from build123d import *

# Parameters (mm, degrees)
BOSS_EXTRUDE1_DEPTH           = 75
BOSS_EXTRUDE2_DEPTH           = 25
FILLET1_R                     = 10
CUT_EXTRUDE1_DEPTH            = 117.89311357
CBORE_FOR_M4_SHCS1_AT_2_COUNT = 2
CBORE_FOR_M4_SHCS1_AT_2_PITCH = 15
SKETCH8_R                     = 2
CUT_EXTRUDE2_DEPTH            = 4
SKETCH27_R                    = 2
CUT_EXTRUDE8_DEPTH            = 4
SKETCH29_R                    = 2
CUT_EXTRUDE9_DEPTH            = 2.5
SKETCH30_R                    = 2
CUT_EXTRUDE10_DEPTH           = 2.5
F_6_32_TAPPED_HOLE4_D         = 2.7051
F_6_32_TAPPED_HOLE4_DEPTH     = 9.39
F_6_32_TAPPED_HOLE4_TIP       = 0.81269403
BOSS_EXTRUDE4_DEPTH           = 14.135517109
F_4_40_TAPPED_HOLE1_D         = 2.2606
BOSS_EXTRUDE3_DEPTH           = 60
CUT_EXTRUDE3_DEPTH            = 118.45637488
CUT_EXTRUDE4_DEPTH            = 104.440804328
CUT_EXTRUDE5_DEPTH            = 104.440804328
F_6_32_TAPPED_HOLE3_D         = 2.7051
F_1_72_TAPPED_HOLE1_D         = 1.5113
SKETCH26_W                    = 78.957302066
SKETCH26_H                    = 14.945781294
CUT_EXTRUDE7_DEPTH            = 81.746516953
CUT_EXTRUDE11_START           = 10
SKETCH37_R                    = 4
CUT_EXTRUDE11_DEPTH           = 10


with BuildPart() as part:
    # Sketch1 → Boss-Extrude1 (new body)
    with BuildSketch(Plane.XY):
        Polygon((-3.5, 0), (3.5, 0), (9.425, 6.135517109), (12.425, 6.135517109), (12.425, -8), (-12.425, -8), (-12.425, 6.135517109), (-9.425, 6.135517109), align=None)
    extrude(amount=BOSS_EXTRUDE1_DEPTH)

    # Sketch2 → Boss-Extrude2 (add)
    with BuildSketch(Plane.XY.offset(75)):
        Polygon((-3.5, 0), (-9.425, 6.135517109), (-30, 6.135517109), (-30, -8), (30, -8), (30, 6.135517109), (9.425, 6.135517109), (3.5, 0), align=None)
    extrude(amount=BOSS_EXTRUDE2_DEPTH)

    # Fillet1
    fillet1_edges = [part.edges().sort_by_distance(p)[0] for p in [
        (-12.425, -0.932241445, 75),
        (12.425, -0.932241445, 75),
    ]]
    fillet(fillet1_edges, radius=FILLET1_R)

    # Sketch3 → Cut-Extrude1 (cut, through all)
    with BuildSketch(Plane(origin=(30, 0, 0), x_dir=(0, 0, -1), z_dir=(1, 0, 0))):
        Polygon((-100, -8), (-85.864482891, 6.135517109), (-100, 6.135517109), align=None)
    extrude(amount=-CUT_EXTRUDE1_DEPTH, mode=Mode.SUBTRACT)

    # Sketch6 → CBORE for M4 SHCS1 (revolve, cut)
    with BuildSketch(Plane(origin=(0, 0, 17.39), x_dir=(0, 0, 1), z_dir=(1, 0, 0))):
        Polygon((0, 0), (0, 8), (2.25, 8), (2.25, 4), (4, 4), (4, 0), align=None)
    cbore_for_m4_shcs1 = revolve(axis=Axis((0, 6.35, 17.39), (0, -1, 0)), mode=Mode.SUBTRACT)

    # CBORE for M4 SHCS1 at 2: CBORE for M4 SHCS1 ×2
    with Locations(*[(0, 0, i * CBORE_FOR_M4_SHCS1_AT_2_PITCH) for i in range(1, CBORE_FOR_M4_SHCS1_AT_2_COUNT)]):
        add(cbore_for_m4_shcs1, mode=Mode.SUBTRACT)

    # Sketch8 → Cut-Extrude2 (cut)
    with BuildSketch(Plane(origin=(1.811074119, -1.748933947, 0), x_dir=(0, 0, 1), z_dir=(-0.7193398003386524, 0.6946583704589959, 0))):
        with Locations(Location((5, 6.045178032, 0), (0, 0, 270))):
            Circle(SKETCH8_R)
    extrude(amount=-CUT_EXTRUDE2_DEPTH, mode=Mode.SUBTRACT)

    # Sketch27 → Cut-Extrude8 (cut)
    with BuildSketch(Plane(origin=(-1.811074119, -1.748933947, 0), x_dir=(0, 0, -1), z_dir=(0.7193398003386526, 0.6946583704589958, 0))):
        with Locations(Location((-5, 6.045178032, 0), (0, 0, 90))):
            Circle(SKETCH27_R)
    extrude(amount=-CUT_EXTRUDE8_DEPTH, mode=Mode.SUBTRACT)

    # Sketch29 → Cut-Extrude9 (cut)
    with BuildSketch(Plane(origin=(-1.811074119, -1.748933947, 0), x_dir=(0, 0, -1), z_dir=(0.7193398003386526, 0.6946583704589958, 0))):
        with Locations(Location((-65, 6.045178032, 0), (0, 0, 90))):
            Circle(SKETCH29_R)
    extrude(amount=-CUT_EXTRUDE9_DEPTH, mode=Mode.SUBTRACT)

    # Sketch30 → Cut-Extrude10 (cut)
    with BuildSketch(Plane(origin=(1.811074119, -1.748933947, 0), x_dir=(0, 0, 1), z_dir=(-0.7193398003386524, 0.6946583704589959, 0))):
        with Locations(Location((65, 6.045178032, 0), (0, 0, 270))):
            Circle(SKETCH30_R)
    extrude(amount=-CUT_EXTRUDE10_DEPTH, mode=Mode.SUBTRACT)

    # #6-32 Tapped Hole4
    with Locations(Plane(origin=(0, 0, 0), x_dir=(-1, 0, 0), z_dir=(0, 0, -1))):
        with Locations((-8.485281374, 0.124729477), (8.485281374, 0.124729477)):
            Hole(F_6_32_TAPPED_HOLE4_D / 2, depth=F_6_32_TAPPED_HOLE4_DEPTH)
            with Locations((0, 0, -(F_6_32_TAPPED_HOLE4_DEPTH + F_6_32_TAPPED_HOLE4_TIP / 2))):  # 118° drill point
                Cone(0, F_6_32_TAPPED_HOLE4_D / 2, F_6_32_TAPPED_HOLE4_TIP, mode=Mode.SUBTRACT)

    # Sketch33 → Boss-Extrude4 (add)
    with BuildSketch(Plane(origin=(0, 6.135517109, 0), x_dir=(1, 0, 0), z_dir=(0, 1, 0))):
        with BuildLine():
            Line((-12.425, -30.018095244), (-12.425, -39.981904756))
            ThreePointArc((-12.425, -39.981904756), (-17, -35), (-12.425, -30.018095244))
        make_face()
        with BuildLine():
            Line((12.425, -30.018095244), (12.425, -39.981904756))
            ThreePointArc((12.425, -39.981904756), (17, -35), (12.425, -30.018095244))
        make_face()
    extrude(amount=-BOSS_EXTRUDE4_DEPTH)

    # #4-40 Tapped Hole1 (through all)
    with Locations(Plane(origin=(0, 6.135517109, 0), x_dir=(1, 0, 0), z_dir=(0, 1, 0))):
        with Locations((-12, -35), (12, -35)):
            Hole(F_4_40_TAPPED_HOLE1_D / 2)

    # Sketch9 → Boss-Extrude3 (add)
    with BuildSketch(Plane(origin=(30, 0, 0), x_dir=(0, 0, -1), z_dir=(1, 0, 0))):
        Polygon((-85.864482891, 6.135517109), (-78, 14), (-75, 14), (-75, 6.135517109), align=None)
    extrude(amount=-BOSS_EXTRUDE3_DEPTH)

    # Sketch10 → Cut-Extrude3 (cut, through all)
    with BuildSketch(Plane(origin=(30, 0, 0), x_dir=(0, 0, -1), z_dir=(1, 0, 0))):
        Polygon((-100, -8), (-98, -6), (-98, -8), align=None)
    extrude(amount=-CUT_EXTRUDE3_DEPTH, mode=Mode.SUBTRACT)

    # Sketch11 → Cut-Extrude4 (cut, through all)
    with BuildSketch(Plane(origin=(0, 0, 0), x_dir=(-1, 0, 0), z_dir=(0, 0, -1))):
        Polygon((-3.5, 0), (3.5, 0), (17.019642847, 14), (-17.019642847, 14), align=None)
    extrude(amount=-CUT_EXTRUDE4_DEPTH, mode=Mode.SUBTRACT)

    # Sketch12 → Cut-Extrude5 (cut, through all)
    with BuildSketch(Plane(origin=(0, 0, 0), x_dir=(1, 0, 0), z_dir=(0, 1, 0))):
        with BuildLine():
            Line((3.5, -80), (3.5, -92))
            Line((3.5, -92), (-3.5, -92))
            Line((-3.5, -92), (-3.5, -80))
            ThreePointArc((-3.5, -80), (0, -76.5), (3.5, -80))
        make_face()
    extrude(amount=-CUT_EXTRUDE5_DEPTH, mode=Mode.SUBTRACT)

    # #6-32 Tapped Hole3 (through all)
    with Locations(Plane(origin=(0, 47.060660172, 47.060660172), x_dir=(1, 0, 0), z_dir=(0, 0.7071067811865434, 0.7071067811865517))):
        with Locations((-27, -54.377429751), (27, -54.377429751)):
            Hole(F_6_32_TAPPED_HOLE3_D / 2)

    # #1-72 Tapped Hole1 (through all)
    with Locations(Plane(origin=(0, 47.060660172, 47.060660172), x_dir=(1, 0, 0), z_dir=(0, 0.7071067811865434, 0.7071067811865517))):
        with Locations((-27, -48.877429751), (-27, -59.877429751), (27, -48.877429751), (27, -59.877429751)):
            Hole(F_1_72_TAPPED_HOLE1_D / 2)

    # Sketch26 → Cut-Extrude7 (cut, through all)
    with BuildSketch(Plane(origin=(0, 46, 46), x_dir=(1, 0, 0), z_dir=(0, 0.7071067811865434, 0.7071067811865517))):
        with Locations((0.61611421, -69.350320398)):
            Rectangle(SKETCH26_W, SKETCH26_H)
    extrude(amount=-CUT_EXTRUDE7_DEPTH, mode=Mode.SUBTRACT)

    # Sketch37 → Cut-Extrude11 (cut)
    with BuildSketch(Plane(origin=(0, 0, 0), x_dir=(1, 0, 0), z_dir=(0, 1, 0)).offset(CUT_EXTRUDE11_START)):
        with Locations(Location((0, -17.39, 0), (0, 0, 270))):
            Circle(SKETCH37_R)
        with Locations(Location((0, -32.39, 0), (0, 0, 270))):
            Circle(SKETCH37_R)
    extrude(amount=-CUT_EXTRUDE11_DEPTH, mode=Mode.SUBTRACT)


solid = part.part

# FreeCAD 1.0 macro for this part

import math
import FreeCAD as App
import Part
import Sketcher
Q = App.Units.Quantity


def edges_at(feature, points):
    """Names of the edges that pass closest to the given points."""
    edges = feature.Shape.Edges
    near = lambda p: min(range(len(edges)), key=lambda i: edges[i].distToShape(Part.Vertex(*p))[0])
    return sorted({f"Edge{near(p) + 1}" for p in points})

doc = App.newDocument("Part")
body = doc.addObject("PartDesign::Body", "Body")

sketch1 = body.newObject("Sketcher::SketchObject", "Sketch")
sketch1.AttachmentSupport = (doc.getObject("XY_Plane"), [""])
sketch1.MapMode = "FlatFace"
sketch1.addGeometry(Part.LineSegment(App.Vector(3.5, 0, 0), App.Vector(-3.5, 0, 0)), False)
sketch1.addGeometry(Part.LineSegment(App.Vector(-3.5, 0, 0), App.Vector(-9.425, 6.135517, 0)), False)
sketch1.addGeometry(Part.LineSegment(App.Vector(-9.425, 6.135517, 0), App.Vector(-12.425, 6.135517, 0)), False)
sketch1.addGeometry(Part.LineSegment(App.Vector(-12.425, 6.135517, 0), App.Vector(-12.425, -8, 0)), False)
sketch1.addGeometry(Part.LineSegment(App.Vector(-12.425, -8, 0), App.Vector(12.425, -8, 0)), False)
sketch1.addGeometry(Part.LineSegment(App.Vector(12.425, -8, 0), App.Vector(12.425, 6.135517, 0)), False)
sketch1.addGeometry(Part.LineSegment(App.Vector(12.425, 6.135517, 0), App.Vector(9.425, 6.135517, 0)), False)
sketch1.addGeometry(Part.LineSegment(App.Vector(9.425, 6.135517, 0), App.Vector(3.5, 0, 0)), False)
sketch1.addConstraint(Sketcher.Constraint("Coincident", 0, 2, 1, 1))
sketch1.addConstraint(Sketcher.Constraint("Coincident", 1, 2, 2, 1))
sketch1.addConstraint(Sketcher.Constraint("Coincident", 2, 2, 3, 1))
sketch1.addConstraint(Sketcher.Constraint("Coincident", 3, 2, 4, 1))
sketch1.addConstraint(Sketcher.Constraint("Coincident", 4, 2, 5, 1))
sketch1.addConstraint(Sketcher.Constraint("Coincident", 5, 2, 6, 1))
sketch1.addConstraint(Sketcher.Constraint("Coincident", 6, 2, 7, 1))
sketch1.addConstraint(Sketcher.Constraint("Coincident", 7, 2, 0, 1))
sketch1.addConstraint(Sketcher.Constraint("Horizontal", 0))
sketch1.addConstraint(Sketcher.Constraint("Horizontal", 2))
sketch1.addConstraint(Sketcher.Constraint("Vertical", 3))
sketch1.addConstraint(Sketcher.Constraint("Horizontal", 4))
sketch1.addConstraint(Sketcher.Constraint("Vertical", 5))
sketch1.addConstraint(Sketcher.Constraint("Horizontal", 6))
sketch1.addConstraint(Sketcher.Constraint("Symmetric", 0, 2, 7, 2, -1, 1))
sketch1.addConstraint(Sketcher.Constraint("Symmetric", 2, 2, 5, 2, -2))
sketch1.addConstraint(Sketcher.Constraint("Equal", 2, 6))
sketch1.addConstraint(Sketcher.Constraint("DistanceX", 0, 2, 0, 1, 7.0))
sketch1.addConstraint(Sketcher.Constraint("DistanceX", 2, 2, 2, 1, 3.0))
sketch1.addConstraint(Sketcher.Constraint("Angle", 1, Q("134 deg")))
sketch1.addConstraint(Sketcher.Constraint("DistanceY", 3, 2, -1, 1, 8.0))
sketch1.addConstraint(Sketcher.Constraint("DistanceX", 4, 1, 4, 2, 24.85))
pad1 = body.newObject("PartDesign::Pad", "Pad")
pad1.Profile = sketch1
pad1.Length = 75

sketch2 = body.newObject("Sketcher::SketchObject", "Sketch001")
sketch2.AttachmentSupport = (doc.getObject("XY_Plane"), [""])
sketch2.MapMode = "FlatFace"
sketch2.AttachmentOffset = App.Placement(App.Vector(0, 0, 75), App.Rotation())
sketch2.addGeometry(Part.LineSegment(App.Vector(-3.5, 0, 0), App.Vector(-9.425, 6.135517, 0)), False)
sketch2.addGeometry(Part.LineSegment(App.Vector(-9.425, 6.135517, 0), App.Vector(-30, 6.135517, 0)), False)
sketch2.addGeometry(Part.LineSegment(App.Vector(-30, 6.135517, 0), App.Vector(-30, -8, 0)), False)
sketch2.addGeometry(Part.LineSegment(App.Vector(-30, -8, 0), App.Vector(30, -8, 0)), False)
sketch2.addGeometry(Part.LineSegment(App.Vector(30, -8, 0), App.Vector(30, 6.135517, 0)), False)
sketch2.addGeometry(Part.LineSegment(App.Vector(30, 6.135517, 0), App.Vector(9.425, 6.135517, 0)), False)
sketch2.addGeometry(Part.LineSegment(App.Vector(9.425, 6.135517, 0), App.Vector(3.5, 0, 0)), False)
sketch2.addGeometry(Part.LineSegment(App.Vector(3.5, 0, 0), App.Vector(-3.5, 0, 0)), False)
sketch2.addConstraint(Sketcher.Constraint("Coincident", 0, 2, 1, 1))
sketch2.addConstraint(Sketcher.Constraint("Coincident", 1, 2, 2, 1))
sketch2.addConstraint(Sketcher.Constraint("Coincident", 2, 2, 3, 1))
sketch2.addConstraint(Sketcher.Constraint("Coincident", 3, 2, 4, 1))
sketch2.addConstraint(Sketcher.Constraint("Coincident", 4, 2, 5, 1))
sketch2.addConstraint(Sketcher.Constraint("Coincident", 5, 2, 6, 1))
sketch2.addConstraint(Sketcher.Constraint("Coincident", 6, 2, 7, 1))
sketch2.addConstraint(Sketcher.Constraint("Coincident", 7, 2, 0, 1))
sketch2.addConstraint(Sketcher.Constraint("Horizontal", 1))
sketch2.addConstraint(Sketcher.Constraint("Vertical", 2))
sketch2.addConstraint(Sketcher.Constraint("Horizontal", 3))
sketch2.addConstraint(Sketcher.Constraint("Vertical", 4))
sketch2.addConstraint(Sketcher.Constraint("Horizontal", 5))
sketch2.addConstraint(Sketcher.Constraint("Horizontal", 7))
sketch2.addConstraint(Sketcher.Constraint("Symmetric", 6, 2, 7, 2, -1, 1))
sketch2.addConstraint(Sketcher.Constraint("Symmetric", 1, 2, 4, 2, -2))
sketch2.addConstraint(Sketcher.Constraint("Equal", 1, 5))
sketch2.addConstraint(Sketcher.Constraint("DistanceX", 3, 1, 3, 2, 60.0))
sketch2.addConstraint(Sketcher.Constraint("DistanceX", 7, 2, 7, 1, 7.0))
sketch2.addConstraint(Sketcher.Constraint("Angle", 0, Q("134 deg")))
sketch2.addConstraint(Sketcher.Constraint("DistanceY", 2, 2, -1, 1, 8.0))
sketch2.addConstraint(Sketcher.Constraint("DistanceX", 1, 2, 1, 1, 20.575))
pad2 = body.newObject("PartDesign::Pad", "Pad001")
pad2.Profile = sketch2
pad2.Length = 25
doc.recompute()

fillet = body.newObject("PartDesign::Fillet", "Fillet")
fillet.Base = (pad2, edges_at(pad2, [(-12.425, -0.932, 75), (12.425, -0.932, 75)]))
fillet.Radius = 10

sketch3 = body.newObject("Sketcher::SketchObject", "Sketch002")
sketch3.AttachmentSupport = (doc.getObject("YZ_Plane"), [""])
sketch3.MapMode = "FlatFace"
sketch3.AttachmentOffset = App.Placement(App.Vector(0, 0, 30), App.Rotation())
sketch3.addGeometry(Part.LineSegment(App.Vector(-8, 100, 0), App.Vector(6.135517, 85.864483, 0)), False)
sketch3.addGeometry(Part.LineSegment(App.Vector(6.135517, 85.864483, 0), App.Vector(6.135517, 100, 0)), False)
sketch3.addGeometry(Part.LineSegment(App.Vector(6.135517, 100, 0), App.Vector(-8, 100, 0)), False)
sketch3.addConstraint(Sketcher.Constraint("Coincident", 0, 2, 1, 1))
sketch3.addConstraint(Sketcher.Constraint("Coincident", 1, 2, 2, 1))
sketch3.addConstraint(Sketcher.Constraint("Coincident", 2, 2, 0, 1))
sketch3.addConstraint(Sketcher.Constraint("Vertical", 1))
sketch3.addConstraint(Sketcher.Constraint("Horizontal", 2))
sketch3.addConstraint(Sketcher.Constraint("Equal", 2, 1))
sketch3.addConstraint(Sketcher.Constraint("DistanceY", -1, 1, 1, 2, 100.0))
sketch3.addConstraint(Sketcher.Constraint("DistanceX", 2, 2, -1, 1, 8.0))
sketch3.addConstraint(Sketcher.Constraint("Distance", 0, 19.99064))
pocket1 = body.newObject("PartDesign::Pocket", "Pocket")
pocket1.Profile = sketch3
pocket1.Type = "ThroughAll"

sketch4 = body.newObject("Sketcher::SketchObject", "Sketch003")
sketch4.AttachmentSupport = (doc.getObject("YZ_Plane"), [""])
sketch4.MapMode = "FlatFace"
sketch4.addGeometry(Part.LineSegment(App.Vector(-8, 17.39, 0), App.Vector(0, 17.39, 0)), False)
sketch4.addGeometry(Part.LineSegment(App.Vector(0, 17.39, 0), App.Vector(0, 21.39, 0)), False)
sketch4.addGeometry(Part.LineSegment(App.Vector(0, 21.39, 0), App.Vector(-4, 21.39, 0)), False)
sketch4.addGeometry(Part.LineSegment(App.Vector(-4, 21.39, 0), App.Vector(-4, 19.64, 0)), False)
sketch4.addGeometry(Part.LineSegment(App.Vector(-4, 19.64, 0), App.Vector(-8, 19.64, 0)), False)
sketch4.addGeometry(Part.LineSegment(App.Vector(-8, 19.64, 0), App.Vector(-8, 17.39, 0)), False)
sketch4.addGeometry(Part.LineSegment(App.Vector(0, 17.39, 0), App.Vector(-8, 17.39, 0)), True)
sketch4.addConstraint(Sketcher.Constraint("Coincident", 0, 2, 1, 1))
sketch4.addConstraint(Sketcher.Constraint("Coincident", 1, 2, 2, 1))
sketch4.addConstraint(Sketcher.Constraint("Coincident", 2, 2, 3, 1))
sketch4.addConstraint(Sketcher.Constraint("Coincident", 3, 2, 4, 1))
sketch4.addConstraint(Sketcher.Constraint("Coincident", 4, 2, 5, 1))
sketch4.addConstraint(Sketcher.Constraint("Coincident", 5, 2, 0, 1))
sketch4.addConstraint(Sketcher.Constraint("Horizontal", 0))
sketch4.addConstraint(Sketcher.Constraint("Vertical", 1))
sketch4.addConstraint(Sketcher.Constraint("Horizontal", 2))
sketch4.addConstraint(Sketcher.Constraint("Vertical", 3))
sketch4.addConstraint(Sketcher.Constraint("Horizontal", 4))
sketch4.addConstraint(Sketcher.Constraint("Vertical", 5))
sketch4.addConstraint(Sketcher.Constraint("Horizontal", 6))
sketch4.addConstraint(Sketcher.Constraint("Coincident", 6, 1, 0, 2))
sketch4.addConstraint(Sketcher.Constraint("PointOnObject", 0, 2, -2))
sketch4.addConstraint(Sketcher.Constraint("Vertical", 4, 2, 6, 2))
sketch4.addConstraint(Sketcher.Constraint("Equal", 2, 4))
sketch4.addConstraint(Sketcher.Constraint("Equal", 4, 1))
sketch4.addConstraint(Sketcher.Constraint("DistanceX", 0, 1, 0, 2, 8.0))
sketch4.addConstraint(Sketcher.Constraint("DistanceY", 3, 2, 3, 1, 1.75))
sketch4.addConstraint(Sketcher.Constraint("DistanceY", -1, 1, 0, 2, 17.39))
groove = body.newObject("PartDesign::Groove", "Groove")
groove.Profile = sketch4
groove.ReferenceAxis = (sketch4, ["Axis0"])
groove.Angle = 360
doc.recompute()

linearpattern = body.newObject("PartDesign::LinearPattern", "LinearPattern")
linearpattern.Originals = [groove]
linearpattern.Direction = (doc.getObject("Z_Axis"), [""])
linearpattern.Mode = "offset"
linearpattern.Offset = 15
linearpattern.Occurrences = 2
body.Tip = linearpattern

sketch5 = body.newObject("Sketcher::SketchObject", "Sketch004")
sketch5.Placement = App.Placement(App.Vector(1.811074, -1.748934, 0), App.Rotation(App.Vector(0, 0, 1), App.Vector(0.69465837, 0.7193398, 0), App.Vector(-0.7193398, 0.69465837, 0), "ZXY"))
sketch5.addGeometry(Part.Circle(App.Vector(5, 6.045178, 0), App.Vector(0, 0, 1), 2), False)
sketch5.addConstraint(Sketcher.Constraint("Diameter", 0, 4.0))
sketch5.addConstraint(Sketcher.Constraint("DistanceX", -1, 1, 0, 3, 5.0))
sketch5.addConstraint(Sketcher.Constraint("DistanceY", -1, 1, 0, 3, 6.045178))
pocket2 = body.newObject("PartDesign::Pocket", "Pocket001")
pocket2.Profile = sketch5
pocket2.Length = 4

sketch6 = body.newObject("Sketcher::SketchObject", "Sketch005")
sketch6.Placement = App.Placement(App.Vector(-1.811074, -1.748934, 0), App.Rotation(App.Vector(0, 0, -1), App.Vector(-0.69465837, 0.7193398, 0), App.Vector(0.7193398, 0.69465837, 0), "ZXY"))
sketch6.addGeometry(Part.Circle(App.Vector(-5, 6.045178, 0), App.Vector(0, 0, 1), 2), False)
sketch6.addConstraint(Sketcher.Constraint("Diameter", 0, 4.0))
sketch6.addConstraint(Sketcher.Constraint("DistanceX", 0, 3, -1, 1, 5.0))
sketch6.addConstraint(Sketcher.Constraint("DistanceY", -1, 1, 0, 3, 6.045178))
pocket3 = body.newObject("PartDesign::Pocket", "Pocket002")
pocket3.Profile = sketch6
pocket3.Length = 4

sketch7 = body.newObject("Sketcher::SketchObject", "Sketch006")
sketch7.Placement = App.Placement(App.Vector(-1.811074, -1.748934, 0), App.Rotation(App.Vector(0, 0, -1), App.Vector(-0.69465837, 0.7193398, 0), App.Vector(0.7193398, 0.69465837, 0), "ZXY"))
sketch7.addGeometry(Part.Circle(App.Vector(-65, 6.045178, 0), App.Vector(0, 0, 1), 2), False)
sketch7.addConstraint(Sketcher.Constraint("Diameter", 0, 4.0))
sketch7.addConstraint(Sketcher.Constraint("DistanceX", 0, 3, -1, 1, 65.0))
sketch7.addConstraint(Sketcher.Constraint("DistanceY", -1, 1, 0, 3, 6.045178))
pocket4 = body.newObject("PartDesign::Pocket", "Pocket003")
pocket4.Profile = sketch7
pocket4.Length = 2.5

sketch8 = body.newObject("Sketcher::SketchObject", "Sketch007")
sketch8.Placement = App.Placement(App.Vector(1.811074, -1.748934, 0), App.Rotation(App.Vector(0, 0, 1), App.Vector(0.69465837, 0.7193398, 0), App.Vector(-0.7193398, 0.69465837, 0), "ZXY"))
sketch8.addGeometry(Part.Circle(App.Vector(65, 6.045178, 0), App.Vector(0, 0, 1), 2), False)
sketch8.addConstraint(Sketcher.Constraint("Diameter", 0, 4.0))
sketch8.addConstraint(Sketcher.Constraint("DistanceX", -1, 1, 0, 3, 65.0))
sketch8.addConstraint(Sketcher.Constraint("DistanceY", -1, 1, 0, 3, 6.045178))
pocket5 = body.newObject("PartDesign::Pocket", "Pocket004")
pocket5.Profile = sketch8
pocket5.Length = 2.5

sketch9 = body.newObject("Sketcher::SketchObject", "Sketch008")
sketch9.AttachmentSupport = (doc.getObject("XY_Plane"), [""])
sketch9.MapMode = "FlatFace"
sketch9.addGeometry(Part.Circle(App.Vector(8.485281, 0.124729, 0), App.Vector(0, 0, 1), 1.35255), False)
sketch9.addGeometry(Part.Circle(App.Vector(-8.485281, 0.124729, 0), App.Vector(0, 0, 1), 1.35255), False)
sketch9.addConstraint(Sketcher.Constraint("Equal", 0, 1))
sketch9.addConstraint(Sketcher.Constraint("Symmetric", 0, 3, 1, 3, -2))
sketch9.addConstraint(Sketcher.Constraint("Diameter", 0, 2.7051))
sketch9.addConstraint(Sketcher.Constraint("DistanceX", -1, 1, 0, 3, 8.485281))
sketch9.addConstraint(Sketcher.Constraint("DistanceY", -1, 1, 0, 3, 0.124729))
doc.recompute()
hole = body.newObject("PartDesign::Hole", "Hole")
hole.Profile = sketch9
hole.ThreadType = "None"
hole.Diameter = 2.7051
hole.DepthType = "Dimension"
hole.Depth = 9.39
hole.DrillPoint = "Angled"
hole.DrillPointAngle = 118
hole.Reversed = True

sketch10 = body.newObject("Sketcher::SketchObject", "Sketch009")
sketch10.AttachmentSupport = (doc.getObject("XZ_Plane"), [""])
sketch10.MapMode = "FlatFace"
sketch10.AttachmentOffset = App.Placement(App.Vector(0, 0, -6.135517), App.Rotation())
sketch10.addGeometry(Part.LineSegment(App.Vector(-12.425, 39.981905, 0), App.Vector(-12.425, 30.018095, 0)), False)
sketch10.addGeometry(Part.ArcOfCircle(Part.Circle(App.Vector(-12, 35, 0), App.Vector(0, 0, 1), 5), math.radians(94.876025), math.radians(265.123975)), False)
sketch10.addGeometry(Part.LineSegment(App.Vector(12.425, 30.018095, 0), App.Vector(12.425, 39.981905, 0)), False)
sketch10.addGeometry(Part.ArcOfCircle(Part.Circle(App.Vector(12, 35, 0), App.Vector(0, 0, 1), 5), math.radians(-85.123975), math.radians(85.123975)), False)
sketch10.addConstraint(Sketcher.Constraint("Coincident", 0, 1, 1, 1))
sketch10.addConstraint(Sketcher.Constraint("Coincident", 1, 2, 0, 2))
sketch10.addConstraint(Sketcher.Constraint("Coincident", 2, 1, 3, 1))
sketch10.addConstraint(Sketcher.Constraint("Coincident", 3, 2, 2, 2))
sketch10.addConstraint(Sketcher.Constraint("Vertical", 0))
sketch10.addConstraint(Sketcher.Constraint("Vertical", 2))
sketch10.addConstraint(Sketcher.Constraint("Equal", 1, 3))
sketch10.addConstraint(Sketcher.Constraint("Symmetric", 1, 3, 3, 3, -2))
sketch10.addConstraint(Sketcher.Constraint("Horizontal", 1, 2, 2, 1))
sketch10.addConstraint(Sketcher.Constraint("Radius", 1, 5.0))
sketch10.addConstraint(Sketcher.Constraint("DistanceX", 1, 3, -1, 1, 12.0))
sketch10.addConstraint(Sketcher.Constraint("DistanceY", -1, 1, 1, 3, 35.0))
sketch10.addConstraint(Sketcher.Constraint("DistanceX", 1, 2, 2, 1, 24.85))
pad3 = body.newObject("PartDesign::Pad", "Pad002")
pad3.Profile = sketch10
pad3.Length = 14.135517

sketch11 = body.newObject("Sketcher::SketchObject", "Sketch010")
sketch11.AttachmentSupport = (doc.getObject("XZ_Plane"), [""])
sketch11.MapMode = "FlatFace"
sketch11.AttachmentOffset = App.Placement(App.Vector(0, 0, -6.135517), App.Rotation())
sketch11.addGeometry(Part.Circle(App.Vector(-12, 35, 0), App.Vector(0, 0, 1), 1.1303), False)
sketch11.addGeometry(Part.Circle(App.Vector(12, 35, 0), App.Vector(0, 0, 1), 1.1303), False)
sketch11.addConstraint(Sketcher.Constraint("Equal", 0, 1))
sketch11.addConstraint(Sketcher.Constraint("Symmetric", 0, 3, 1, 3, -2))
sketch11.addConstraint(Sketcher.Constraint("DistanceX", 0, 3, -1, 1, 12.0))
sketch11.addConstraint(Sketcher.Constraint("DistanceY", -1, 1, 0, 3, 35.0))
sketch11.addConstraint(Sketcher.Constraint("Diameter", 0, 2.2606))
doc.recompute()
hole2 = body.newObject("PartDesign::Hole", "Hole001")
hole2.Profile = sketch11
hole2.ThreadType = "None"
hole2.Diameter = 2.2606
hole2.DepthType = "ThroughAll"
hole2.Reversed = True

sketch12 = body.newObject("Sketcher::SketchObject", "Sketch011")
sketch12.AttachmentSupport = (doc.getObject("YZ_Plane"), [""])
sketch12.MapMode = "FlatFace"
sketch12.AttachmentOffset = App.Placement(App.Vector(0, 0, 30), App.Rotation())
sketch12.addGeometry(Part.LineSegment(App.Vector(14, 78, 0), App.Vector(6.135517, 85.864483, 0)), False)
sketch12.addGeometry(Part.LineSegment(App.Vector(6.135517, 85.864483, 0), App.Vector(6.135517, 75, 0)), False)
sketch12.addGeometry(Part.LineSegment(App.Vector(6.135517, 75, 0), App.Vector(14, 75, 0)), False)
sketch12.addGeometry(Part.LineSegment(App.Vector(14, 75, 0), App.Vector(14, 78, 0)), False)
sketch12.addConstraint(Sketcher.Constraint("Coincident", 0, 2, 1, 1))
sketch12.addConstraint(Sketcher.Constraint("Coincident", 1, 2, 2, 1))
sketch12.addConstraint(Sketcher.Constraint("Coincident", 2, 2, 3, 1))
sketch12.addConstraint(Sketcher.Constraint("Coincident", 3, 2, 0, 1))
sketch12.addConstraint(Sketcher.Constraint("Vertical", 1))
sketch12.addConstraint(Sketcher.Constraint("Horizontal", 2))
sketch12.addConstraint(Sketcher.Constraint("Vertical", 3))
sketch12.addConstraint(Sketcher.Constraint("DistanceY", 3, 1, 3, 2, 3.0))
sketch12.addConstraint(Sketcher.Constraint("Angle", 0, Q("135 deg")))
sketch12.addConstraint(Sketcher.Constraint("DistanceY", -1, 1, 1, 2, 75.0))
sketch12.addConstraint(Sketcher.Constraint("DistanceX", -1, 1, 2, 2, 14.0))
sketch12.addConstraint(Sketcher.Constraint("Distance", 0, 11.122058))
pad4 = body.newObject("PartDesign::Pad", "Pad003")
pad4.Profile = sketch12
pad4.Length = 60
pad4.Reversed = True

sketch13 = body.newObject("Sketcher::SketchObject", "Sketch012")
sketch13.AttachmentSupport = (doc.getObject("YZ_Plane"), [""])
sketch13.MapMode = "FlatFace"
sketch13.AttachmentOffset = App.Placement(App.Vector(0, 0, 30), App.Rotation())
sketch13.addGeometry(Part.LineSegment(App.Vector(-6, 98, 0), App.Vector(-8, 100, 0)), False)
sketch13.addGeometry(Part.LineSegment(App.Vector(-8, 100, 0), App.Vector(-8, 98, 0)), False)
sketch13.addGeometry(Part.LineSegment(App.Vector(-8, 98, 0), App.Vector(-6, 98, 0)), False)
sketch13.addConstraint(Sketcher.Constraint("Coincident", 0, 2, 1, 1))
sketch13.addConstraint(Sketcher.Constraint("Coincident", 1, 2, 2, 1))
sketch13.addConstraint(Sketcher.Constraint("Coincident", 2, 2, 0, 1))
sketch13.addConstraint(Sketcher.Constraint("Vertical", 1))
sketch13.addConstraint(Sketcher.Constraint("Horizontal", 2))
sketch13.addConstraint(Sketcher.Constraint("Equal", 2, 1))
sketch13.addConstraint(Sketcher.Constraint("DistanceX", 2, 1, 2, 2, 2.0))
sketch13.addConstraint(Sketcher.Constraint("DistanceX", 0, 2, -1, 1, 8.0))
sketch13.addConstraint(Sketcher.Constraint("DistanceY", -1, 1, 0, 2, 100.0))
pocket6 = body.newObject("PartDesign::Pocket", "Pocket005")
pocket6.Profile = sketch13
pocket6.Type = "ThroughAll"

sketch14 = body.newObject("Sketcher::SketchObject", "Sketch013")
sketch14.AttachmentSupport = (doc.getObject("XY_Plane"), [""])
sketch14.MapMode = "FlatFace"
sketch14.addGeometry(Part.LineSegment(App.Vector(3.5, 0, 0), App.Vector(-3.5, 0, 0)), False)
sketch14.addGeometry(Part.LineSegment(App.Vector(-3.5, 0, 0), App.Vector(-17.019643, 14, 0)), False)
sketch14.addGeometry(Part.LineSegment(App.Vector(-17.019643, 14, 0), App.Vector(17.019643, 14, 0)), False)
sketch14.addGeometry(Part.LineSegment(App.Vector(17.019643, 14, 0), App.Vector(3.5, 0, 0)), False)
sketch14.addConstraint(Sketcher.Constraint("Coincident", 0, 2, 1, 1))
sketch14.addConstraint(Sketcher.Constraint("Coincident", 1, 2, 2, 1))
sketch14.addConstraint(Sketcher.Constraint("Coincident", 2, 2, 3, 1))
sketch14.addConstraint(Sketcher.Constraint("Coincident", 3, 2, 0, 1))
sketch14.addConstraint(Sketcher.Constraint("Horizontal", 0))
sketch14.addConstraint(Sketcher.Constraint("Horizontal", 2))
sketch14.addConstraint(Sketcher.Constraint("Symmetric", 0, 2, 3, 2, -1, 1))
sketch14.addConstraint(Sketcher.Constraint("Equal", 1, 3))
sketch14.addConstraint(Sketcher.Constraint("DistanceX", 0, 2, 0, 1, 7.0))
sketch14.addConstraint(Sketcher.Constraint("Angle", 1, Q("134 deg")))
sketch14.addConstraint(Sketcher.Constraint("DistanceY", -1, 1, 1, 2, 14.0))
pocket7 = body.newObject("PartDesign::Pocket", "Pocket006")
pocket7.Profile = sketch14
pocket7.Type = "ThroughAll"
pocket7.Reversed = True

sketch15 = body.newObject("Sketcher::SketchObject", "Sketch014")
sketch15.AttachmentSupport = (doc.getObject("XZ_Plane"), [""])
sketch15.MapMode = "FlatFace"
sketch15.addGeometry(Part.LineSegment(App.Vector(3.5, 92, 0), App.Vector(3.5, 80, 0)), False)
sketch15.addGeometry(Part.ArcOfCircle(Part.Circle(App.Vector(0, 80, 0), App.Vector(0, 0, 1), 3.5), math.radians(180), math.radians(360)), False)
sketch15.addGeometry(Part.LineSegment(App.Vector(-3.5, 80, 0), App.Vector(-3.5, 92, 0)), False)
sketch15.addGeometry(Part.LineSegment(App.Vector(-3.5, 92, 0), App.Vector(3.5, 92, 0)), False)
sketch15.addConstraint(Sketcher.Constraint("Tangent", 0, 2, 1, 2))
sketch15.addConstraint(Sketcher.Constraint("Tangent", 1, 1, 2, 1))
sketch15.addConstraint(Sketcher.Constraint("Coincident", 2, 2, 3, 1))
sketch15.addConstraint(Sketcher.Constraint("Coincident", 3, 2, 0, 1))
sketch15.addConstraint(Sketcher.Constraint("Vertical", 0))
sketch15.addConstraint(Sketcher.Constraint("Vertical", 2))
sketch15.addConstraint(Sketcher.Constraint("Horizontal", 3))
sketch15.addConstraint(Sketcher.Constraint("PointOnObject", 1, 3, -2))
sketch15.addConstraint(Sketcher.Constraint("Radius", 1, 3.5))
sketch15.addConstraint(Sketcher.Constraint("DistanceY", 0, 2, 0, 1, 12.0))
sketch15.addConstraint(Sketcher.Constraint("DistanceY", -1, 1, 1, 3, 80.0))
pocket8 = body.newObject("PartDesign::Pocket", "Pocket007")
pocket8.Profile = sketch15
pocket8.Type = "ThroughAll"
pocket8.Reversed = True

sketch16 = body.newObject("Sketcher::SketchObject", "Sketch015")
sketch16.Placement = App.Placement(App.Vector(0, 47.06066, 47.06066), App.Rotation(App.Vector(1, 0, 0), App.Vector(0, 0.707106781, -0.707106781), App.Vector(0, 0.707106781, 0.707106781), "ZXY"))
sketch16.addGeometry(Part.Circle(App.Vector(-27, -54.37743, 0), App.Vector(0, 0, 1), 1.35255), False)
sketch16.addGeometry(Part.Circle(App.Vector(27, -54.37743, 0), App.Vector(0, 0, 1), 1.35255), False)
sketch16.addConstraint(Sketcher.Constraint("Equal", 0, 1))
sketch16.addConstraint(Sketcher.Constraint("Symmetric", 0, 3, 1, 3, -2))
sketch16.addConstraint(Sketcher.Constraint("DistanceX", 0, 3, -1, 1, 27.0))
sketch16.addConstraint(Sketcher.Constraint("Diameter", 0, 2.7051))
sketch16.addConstraint(Sketcher.Constraint("DistanceY", 0, 3, -1, 1, 54.37743))
doc.recompute()
hole3 = body.newObject("PartDesign::Hole", "Hole002")
hole3.Profile = sketch16
hole3.ThreadType = "None"
hole3.Diameter = 2.7051
hole3.DepthType = "ThroughAll"

sketch17 = body.newObject("Sketcher::SketchObject", "Sketch016")
sketch17.Placement = App.Placement(App.Vector(0, 47.06066, 47.06066), App.Rotation(App.Vector(1, 0, 0), App.Vector(0, 0.707106781, -0.707106781), App.Vector(0, 0.707106781, 0.707106781), "ZXY"))
sketch17.addGeometry(Part.Circle(App.Vector(-27, -48.87743, 0), App.Vector(0, 0, 1), 0.75565), False)
sketch17.addGeometry(Part.Circle(App.Vector(-27, -59.87743, 0), App.Vector(0, 0, 1), 0.75565), False)
sketch17.addGeometry(Part.Circle(App.Vector(27, -48.87743, 0), App.Vector(0, 0, 1), 0.75565), False)
sketch17.addGeometry(Part.Circle(App.Vector(27, -59.87743, 0), App.Vector(0, 0, 1), 0.75565), False)
sketch17.addConstraint(Sketcher.Constraint("Equal", 0, 1))
sketch17.addConstraint(Sketcher.Constraint("Equal", 1, 2))
sketch17.addConstraint(Sketcher.Constraint("Equal", 2, 3))
sketch17.addConstraint(Sketcher.Constraint("Symmetric", 0, 3, 2, 3, -2))
sketch17.addConstraint(Sketcher.Constraint("Symmetric", 1, 3, 3, 3, -2))
sketch17.addConstraint(Sketcher.Constraint("Vertical", 0, 3, 1, 3))
sketch17.addConstraint(Sketcher.Constraint("DistanceX", 0, 3, -1, 1, 27.0))
sketch17.addConstraint(Sketcher.Constraint("DistanceY", 1, 3, 0, 3, 11.0))
sketch17.addConstraint(Sketcher.Constraint("Diameter", 0, 1.5113))
sketch17.addConstraint(Sketcher.Constraint("DistanceY", 0, 3, -1, 1, 48.87743))
doc.recompute()
hole4 = body.newObject("PartDesign::Hole", "Hole003")
hole4.Profile = sketch17
hole4.ThreadType = "None"
hole4.Diameter = 1.5113
hole4.DepthType = "ThroughAll"

sketch18 = body.newObject("Sketcher::SketchObject", "Sketch017")
sketch18.Placement = App.Placement(App.Vector(0, 46, 46), App.Rotation(App.Vector(1, 0, 0), App.Vector(0, 0.707106781, -0.707106781), App.Vector(0, 0.707106781, 0.707106781), "ZXY"))
sketch18.addGeometry(Part.LineSegment(App.Vector(-38.862537, -61.87743, 0), App.Vector(-38.862537, -76.823211, 0)), False)
sketch18.addGeometry(Part.LineSegment(App.Vector(-38.862537, -76.823211, 0), App.Vector(40.094765, -76.823211, 0)), False)
sketch18.addGeometry(Part.LineSegment(App.Vector(40.094765, -76.823211, 0), App.Vector(40.094765, -61.87743, 0)), False)
sketch18.addGeometry(Part.LineSegment(App.Vector(40.094765, -61.87743, 0), App.Vector(-38.862537, -61.87743, 0)), False)
sketch18.addConstraint(Sketcher.Constraint("Coincident", 0, 2, 1, 1))
sketch18.addConstraint(Sketcher.Constraint("Coincident", 1, 2, 2, 1))
sketch18.addConstraint(Sketcher.Constraint("Coincident", 2, 2, 3, 1))
sketch18.addConstraint(Sketcher.Constraint("Coincident", 3, 2, 0, 1))
sketch18.addConstraint(Sketcher.Constraint("Vertical", 0))
sketch18.addConstraint(Sketcher.Constraint("Horizontal", 1))
sketch18.addConstraint(Sketcher.Constraint("Vertical", 2))
sketch18.addConstraint(Sketcher.Constraint("Horizontal", 3))
sketch18.addConstraint(Sketcher.Constraint("DistanceY", 0, 2, 0, 1, 14.945781))
sketch18.addConstraint(Sketcher.Constraint("DistanceX", 1, 1, 1, 2, 78.957302))
sketch18.addConstraint(Sketcher.Constraint("DistanceY", 0, 2, -1, 1, 76.823211))
sketch18.addConstraint(Sketcher.Constraint("DistanceX", 0, 2, -1, 1, 38.862537))
pocket9 = body.newObject("PartDesign::Pocket", "Pocket008")
pocket9.Profile = sketch18
pocket9.Type = "ThroughAll"

sketch19 = body.newObject("Sketcher::SketchObject", "Sketch018")
sketch19.AttachmentSupport = (doc.getObject("XZ_Plane"), [""])
sketch19.MapMode = "FlatFace"
sketch19.AttachmentOffset = App.Placement(App.Vector(0, 0, -10), App.Rotation())
sketch19.addGeometry(Part.Circle(App.Vector(0, 17.39, 0), App.Vector(0, 0, 1), 4), False)
sketch19.addGeometry(Part.Circle(App.Vector(0, 32.39, 0), App.Vector(0, 0, 1), 4), False)
sketch19.addConstraint(Sketcher.Constraint("Equal", 0, 1))
sketch19.addConstraint(Sketcher.Constraint("PointOnObject", 0, 3, -2))
sketch19.addConstraint(Sketcher.Constraint("PointOnObject", 1, 3, -2))
sketch19.addConstraint(Sketcher.Constraint("Diameter", 0, 8.0))
sketch19.addConstraint(Sketcher.Constraint("DistanceY", 0, 3, 1, 3, 15.0))
sketch19.addConstraint(Sketcher.Constraint("DistanceY", -1, 1, 0, 3, 17.39))
pocket10 = body.newObject("PartDesign::Pocket", "Pocket009")
pocket10.Profile = sketch19
pocket10.Length = 10
pocket10.Reversed = True

doc.recompute()
